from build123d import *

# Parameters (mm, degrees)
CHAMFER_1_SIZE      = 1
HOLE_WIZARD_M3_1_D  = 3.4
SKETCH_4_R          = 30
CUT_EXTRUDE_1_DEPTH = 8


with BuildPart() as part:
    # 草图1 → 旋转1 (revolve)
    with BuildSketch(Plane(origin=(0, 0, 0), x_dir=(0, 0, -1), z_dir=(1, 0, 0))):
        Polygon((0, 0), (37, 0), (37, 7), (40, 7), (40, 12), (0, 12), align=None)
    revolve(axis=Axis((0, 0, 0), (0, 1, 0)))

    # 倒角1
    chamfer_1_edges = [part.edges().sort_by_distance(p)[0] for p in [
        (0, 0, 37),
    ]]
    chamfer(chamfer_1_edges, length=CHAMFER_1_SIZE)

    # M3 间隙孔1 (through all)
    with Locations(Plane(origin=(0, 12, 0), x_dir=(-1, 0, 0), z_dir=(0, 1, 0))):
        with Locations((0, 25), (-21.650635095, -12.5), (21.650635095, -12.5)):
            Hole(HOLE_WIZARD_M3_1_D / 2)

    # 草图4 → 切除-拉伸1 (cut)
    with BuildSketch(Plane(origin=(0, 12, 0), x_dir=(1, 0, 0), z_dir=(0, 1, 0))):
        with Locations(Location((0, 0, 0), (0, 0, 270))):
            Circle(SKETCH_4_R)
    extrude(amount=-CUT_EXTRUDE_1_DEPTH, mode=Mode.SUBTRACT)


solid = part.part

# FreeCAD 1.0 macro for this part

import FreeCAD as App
import Part
import Sketcher
from FreeCAD import Vector


def edges_at(feature, points):
    """Names of the edges that pass closest to the given points."""
    edges = feature.Shape.Edges
    near = lambda p: min(range(len(edges)), key=lambda i: edges[i].distToShape(Part.Vertex(*p))[0])
    return sorted({f"Edge{near(p) + 1}" for p in points})

doc = App.newDocument("Part")
body = doc.addObject("PartDesign::Body", "Body")

# Sketch on YZ plane
sketch1 = doc.addObject("Sketcher::SketchObject", "Sketch")
body.addObject(sketch1)
sketch1.AttachmentSupport = (doc.YZ_Plane, [""])
sketch1.MapMode = "FlatFace"
sketch1.addGeometry([
    Part.LineSegment(Vector(0, 0, 0), Vector(0, -37, 0)),  # 0
    Part.LineSegment(Vector(0, -37, 0), Vector(7, -37, 0)),  # 1
    Part.LineSegment(Vector(7, -37, 0), Vector(7, -40, 0)),  # 2
    Part.LineSegment(Vector(7, -40, 0), Vector(12, -40, 0)),  # 3
    Part.LineSegment(Vector(12, -40, 0), Vector(12, 0, 0)),  # 4
    Part.LineSegment(Vector(12, 0, 0), Vector(0, 0, 0)),  # 5
], False)
sketch1.addConstraint([
    Sketcher.Constraint("Coincident", 0, 2, 1, 1),
    Sketcher.Constraint("Coincident", 1, 2, 2, 1),
    Sketcher.Constraint("Coincident", 2, 2, 3, 1),
    Sketcher.Constraint("Coincident", 3, 2, 4, 1),
    Sketcher.Constraint("Coincident", 4, 2, 5, 1),
    Sketcher.Constraint("Coincident", 5, 2, 0, 1),
    Sketcher.Constraint("Vertical", 0),
    Sketcher.Constraint("Horizontal", 1),
    Sketcher.Constraint("Vertical", 2),
    Sketcher.Constraint("Horizontal", 3),
    Sketcher.Constraint("Vertical", 4),
    Sketcher.Constraint("Horizontal", 5),
    Sketcher.Constraint("Coincident", 5, 2, -1, 1),
    Sketcher.Constraint("DistanceX", 1, 1, 1, 2, 7.0),
    Sketcher.Constraint("DistanceX", 3, 1, 3, 2, 5.0),
    Sketcher.Constraint("DistanceY", 0, 2, 0, 1, 37.0),
    Sketcher.Constraint("DistanceY", 2, 2, 2, 1, 3.0),
])
revolution = doc.addObject("PartDesign::Revolution", "Revolution")
body.addObject(revolution)
revolution.Profile = sketch1
revolution.ReferenceAxis = (sketch1, ["H_Axis"])
revolution.Angle = 360
doc.recompute()

chamfer = doc.addObject("PartDesign::Chamfer", "Chamfer")
body.addObject(chamfer)
chamfer.Base = (revolution, edges_at(revolution, [(0, 0, 37)]))
chamfer.Size = 1

# Sketch on XZ plane
sketch2 = doc.addObject("Sketcher::SketchObject", "Sketch001")
body.addObject(sketch2)
sketch2.AttachmentSupport = (doc.XZ_Plane, [""])
sketch2.MapMode = "FlatFace"
sketch2.AttachmentOffset = App.Placement(Vector(0, 0, -12), App.Rotation())
sketch2.addGeometry([
    Part.Circle(Vector(0, 25, 0), Vector(0, 0, 1), 1.7),
    Part.Circle(Vector(21.7, -12.5, 0), Vector(0, 0, 1), 1.7),
    Part.Circle(Vector(-21.7, -12.5, 0), Vector(0, 0, 1), 1.7),
], False)
sketch2.addConstraint([
    Sketcher.Constraint("Equal", 0, 1),
    Sketcher.Constraint("Equal", 1, 2),
    Sketcher.Constraint("Symmetric", 1, 3, 2, 3, -2),
    Sketcher.Constraint("PointOnObject", 0, 3, -2),
    Sketcher.Constraint("Diameter", 0, 3.4),
    Sketcher.Constraint("DistanceY", -1, 1, 0, 3, 25.0),
    Sketcher.Constraint("DistanceY", 1, 3, -1, 1, 12.5),
    Sketcher.Constraint("DistanceX", 2, 3, 1, 3, 43.30127),
])
doc.recompute()
hole = doc.addObject("PartDesign::Hole", "Hole")
body.addObject(hole)
hole.Profile = sketch2
hole.ThreadType = "None"
hole.Diameter = 3.4
hole.DepthType = "ThroughAll"
hole.Reversed = True

# Sketch on XZ plane
sketch3 = doc.addObject("Sketcher::SketchObject", "Sketch002")
body.addObject(sketch3)
sketch3.AttachmentSupport = (doc.XZ_Plane, [""])
sketch3.MapMode = "FlatFace"
sketch3.AttachmentOffset = App.Placement(Vector(0, 0, -12), App.Rotation())
sketch3.addGeometry(Part.Circle(Vector(0, 0, 0), Vector(0, 0, 1), 30), False)
sketch3.addConstraint([
    Sketcher.Constraint("Coincident", 0, 3, -1, 1),
    Sketcher.Constraint("Diameter", 0, 60.0),
])
pocket1 = doc.addObject("PartDesign::Pocket", "Pocket")
body.addObject(pocket1)
pocket1.Profile = sketch3
pocket1.Length = 8
pocket1.Reversed = True

doc.recompute()
